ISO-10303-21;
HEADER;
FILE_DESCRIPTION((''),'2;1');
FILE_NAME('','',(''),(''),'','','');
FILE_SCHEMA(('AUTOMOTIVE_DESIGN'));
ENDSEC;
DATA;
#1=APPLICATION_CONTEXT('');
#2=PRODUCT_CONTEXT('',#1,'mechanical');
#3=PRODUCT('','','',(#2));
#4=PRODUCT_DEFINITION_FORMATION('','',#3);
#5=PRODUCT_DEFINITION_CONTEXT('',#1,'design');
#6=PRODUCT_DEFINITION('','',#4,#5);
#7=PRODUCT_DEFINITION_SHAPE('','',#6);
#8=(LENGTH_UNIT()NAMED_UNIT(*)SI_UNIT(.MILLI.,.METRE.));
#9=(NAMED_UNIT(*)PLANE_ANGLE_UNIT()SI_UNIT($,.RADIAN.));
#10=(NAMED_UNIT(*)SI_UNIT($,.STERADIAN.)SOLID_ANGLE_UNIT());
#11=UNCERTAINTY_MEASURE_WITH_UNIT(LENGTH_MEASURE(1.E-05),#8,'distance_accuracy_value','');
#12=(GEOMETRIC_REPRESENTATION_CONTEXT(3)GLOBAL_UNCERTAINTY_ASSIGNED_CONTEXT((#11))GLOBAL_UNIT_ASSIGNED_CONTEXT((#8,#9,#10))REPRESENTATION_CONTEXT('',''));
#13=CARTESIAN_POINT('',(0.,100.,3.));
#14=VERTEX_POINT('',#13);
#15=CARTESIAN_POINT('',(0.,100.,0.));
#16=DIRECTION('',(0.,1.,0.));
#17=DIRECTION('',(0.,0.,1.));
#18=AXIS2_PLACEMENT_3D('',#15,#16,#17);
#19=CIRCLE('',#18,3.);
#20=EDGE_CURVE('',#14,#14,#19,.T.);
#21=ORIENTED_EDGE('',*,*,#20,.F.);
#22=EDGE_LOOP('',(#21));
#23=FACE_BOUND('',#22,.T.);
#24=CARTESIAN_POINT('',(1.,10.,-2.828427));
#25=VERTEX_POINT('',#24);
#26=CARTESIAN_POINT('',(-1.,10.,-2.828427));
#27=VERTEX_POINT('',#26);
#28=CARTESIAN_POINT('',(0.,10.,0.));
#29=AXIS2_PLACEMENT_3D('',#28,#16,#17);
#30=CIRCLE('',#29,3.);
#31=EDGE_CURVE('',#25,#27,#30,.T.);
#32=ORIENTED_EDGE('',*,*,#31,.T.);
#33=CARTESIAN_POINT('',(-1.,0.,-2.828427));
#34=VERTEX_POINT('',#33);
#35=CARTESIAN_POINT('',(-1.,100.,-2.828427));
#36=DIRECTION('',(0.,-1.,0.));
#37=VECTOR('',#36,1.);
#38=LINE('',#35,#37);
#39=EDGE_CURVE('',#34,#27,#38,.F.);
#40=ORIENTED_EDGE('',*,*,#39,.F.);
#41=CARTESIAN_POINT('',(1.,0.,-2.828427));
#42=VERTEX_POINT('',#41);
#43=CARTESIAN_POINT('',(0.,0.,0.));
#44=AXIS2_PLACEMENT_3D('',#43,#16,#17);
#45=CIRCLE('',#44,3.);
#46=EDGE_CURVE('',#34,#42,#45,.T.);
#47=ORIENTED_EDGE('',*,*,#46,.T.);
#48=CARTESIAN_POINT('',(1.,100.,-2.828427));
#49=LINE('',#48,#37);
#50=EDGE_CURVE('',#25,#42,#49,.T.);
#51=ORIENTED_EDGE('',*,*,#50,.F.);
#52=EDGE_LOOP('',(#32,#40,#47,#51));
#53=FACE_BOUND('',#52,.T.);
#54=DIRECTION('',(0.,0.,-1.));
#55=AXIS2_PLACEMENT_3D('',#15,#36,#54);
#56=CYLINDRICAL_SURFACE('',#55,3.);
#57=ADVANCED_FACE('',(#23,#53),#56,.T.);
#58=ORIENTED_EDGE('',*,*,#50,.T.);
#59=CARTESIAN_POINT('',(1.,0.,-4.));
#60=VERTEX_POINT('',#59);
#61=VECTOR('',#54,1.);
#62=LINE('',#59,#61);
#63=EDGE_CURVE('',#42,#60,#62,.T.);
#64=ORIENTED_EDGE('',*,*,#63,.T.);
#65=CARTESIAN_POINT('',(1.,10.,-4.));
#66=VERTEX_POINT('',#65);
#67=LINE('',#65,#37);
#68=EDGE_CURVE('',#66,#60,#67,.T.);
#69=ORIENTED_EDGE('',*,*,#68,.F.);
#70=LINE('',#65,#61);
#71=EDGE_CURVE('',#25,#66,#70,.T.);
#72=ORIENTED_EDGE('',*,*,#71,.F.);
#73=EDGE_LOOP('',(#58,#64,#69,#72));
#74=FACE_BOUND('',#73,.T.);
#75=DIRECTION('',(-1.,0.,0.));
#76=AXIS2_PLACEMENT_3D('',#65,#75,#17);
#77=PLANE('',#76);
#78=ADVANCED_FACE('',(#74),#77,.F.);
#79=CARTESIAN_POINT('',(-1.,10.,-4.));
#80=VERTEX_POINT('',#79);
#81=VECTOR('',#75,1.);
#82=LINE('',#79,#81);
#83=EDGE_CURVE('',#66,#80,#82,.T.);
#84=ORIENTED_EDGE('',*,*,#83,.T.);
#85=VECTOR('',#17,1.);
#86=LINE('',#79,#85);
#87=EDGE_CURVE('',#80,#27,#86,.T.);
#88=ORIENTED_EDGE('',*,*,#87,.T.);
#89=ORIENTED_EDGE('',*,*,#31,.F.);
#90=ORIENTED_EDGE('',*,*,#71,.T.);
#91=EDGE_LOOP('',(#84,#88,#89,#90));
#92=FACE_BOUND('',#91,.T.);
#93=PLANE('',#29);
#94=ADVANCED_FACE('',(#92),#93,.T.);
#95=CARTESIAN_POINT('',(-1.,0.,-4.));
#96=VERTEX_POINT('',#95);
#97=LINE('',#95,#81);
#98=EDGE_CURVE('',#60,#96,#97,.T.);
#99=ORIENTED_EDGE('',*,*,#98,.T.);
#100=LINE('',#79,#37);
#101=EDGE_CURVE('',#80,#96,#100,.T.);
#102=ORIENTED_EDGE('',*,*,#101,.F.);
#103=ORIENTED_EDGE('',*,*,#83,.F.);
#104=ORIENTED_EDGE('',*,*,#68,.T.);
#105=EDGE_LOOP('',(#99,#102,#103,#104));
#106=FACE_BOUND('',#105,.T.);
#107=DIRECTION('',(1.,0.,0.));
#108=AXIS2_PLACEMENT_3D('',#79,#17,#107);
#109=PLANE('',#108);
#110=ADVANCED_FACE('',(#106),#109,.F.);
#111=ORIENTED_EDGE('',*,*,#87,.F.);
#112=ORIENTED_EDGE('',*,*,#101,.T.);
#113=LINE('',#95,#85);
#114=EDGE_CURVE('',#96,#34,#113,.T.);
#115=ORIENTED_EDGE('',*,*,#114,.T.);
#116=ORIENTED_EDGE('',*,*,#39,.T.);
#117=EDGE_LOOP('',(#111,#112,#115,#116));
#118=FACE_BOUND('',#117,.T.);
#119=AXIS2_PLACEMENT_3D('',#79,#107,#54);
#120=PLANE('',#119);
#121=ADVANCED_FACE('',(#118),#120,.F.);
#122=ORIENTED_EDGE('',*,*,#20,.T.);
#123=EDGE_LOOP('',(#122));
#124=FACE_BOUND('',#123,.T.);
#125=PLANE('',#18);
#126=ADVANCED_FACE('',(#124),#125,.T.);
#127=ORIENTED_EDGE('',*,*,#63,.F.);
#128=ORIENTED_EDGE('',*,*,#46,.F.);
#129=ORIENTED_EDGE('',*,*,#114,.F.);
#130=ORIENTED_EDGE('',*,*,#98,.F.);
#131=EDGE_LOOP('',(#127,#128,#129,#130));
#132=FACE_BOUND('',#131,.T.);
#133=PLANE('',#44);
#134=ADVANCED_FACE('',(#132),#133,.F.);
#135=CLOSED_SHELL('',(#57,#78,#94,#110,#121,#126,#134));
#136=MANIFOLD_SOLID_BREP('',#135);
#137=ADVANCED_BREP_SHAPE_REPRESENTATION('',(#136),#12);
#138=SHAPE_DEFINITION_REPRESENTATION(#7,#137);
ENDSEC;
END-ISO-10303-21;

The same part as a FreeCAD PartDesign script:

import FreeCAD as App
import Part
import Sketcher
from FreeCAD import Vector
Q = App.Units.Quantity

doc = App.newDocument("Part")
params = doc.addObject("Spreadsheet::Sheet", "Params")
for row, (alias, value) in enumerate([
    ("sketch1_diameter", "6 mm"),
    ("pad1_length", "100 mm"),
    ("sketch2_width", "2 mm"),
    ("pad2_length", "10 mm"),
], start=1):
    params.set(f"A{row}", alias)
    params.set(f"B{row}", "=" + value)
    params.setAlias(f"B{row}", alias)

body = doc.addObject("PartDesign::Body", "Body")

# Sketch on XZ plane
sketch1 = body.newObject("Sketcher::SketchObject", "Sketch")
sketch1.AttachmentSupport = (doc.getObject("XZ_Plane"), [""])
sketch1.MapMode = "FlatFace"
sketch1.addGeometry(Part.Circle(Vector(0, 0, 0), Vector(0, 0, 1), 3), False)
sketch1.addConstraint(Sketcher.Constraint("Coincident", 0, 3, -1, 1))
sketch1.addConstraint(Sketcher.Constraint("Diameter", 0, Q("6 mm")))
sketch1.setExpression("Constraints[1]", "Params.sketch1_diameter")
pad1 = body.newObject("PartDesign::Pad", "Pad")
pad1.Profile = sketch1
pad1.setExpression("Length", "Params.pad1_length")
pad1.Reversed = True

# Sketch on XZ plane
sketch2 = body.newObject("Sketcher::SketchObject", "Sketch001")
sketch2.AttachmentSupport = (doc.getObject("XZ_Plane"), [""])
sketch2.MapMode = "FlatFace"
sketch2.addGeometry(Part.LineSegment(Vector(-1, -4, 0), Vector(-1, -2, 0)), False)
sketch2.addGeometry(Part.LineSegment(Vector(-1, -2, 0), Vector(1, -2, 0)), False)
sketch2.addGeometry(Part.LineSegment(Vector(1, -2, 0), Vector(1, -4, 0)), False)
sketch2.addGeometry(Part.LineSegment(Vector(1, -4, 0), Vector(-1, -4, 0)), False)
sketch2.addConstraint(Sketcher.Constraint("Coincident", 0, 2, 1, 1))
sketch2.addConstraint(Sketcher.Constraint("Coincident", 1, 2, 2, 1))
sketch2.addConstraint(Sketcher.Constraint("Coincident", 2, 2, 3, 1))
sketch2.addConstraint(Sketcher.Constraint("Coincident", 3, 2, 0, 1))
sketch2.addConstraint(Sketcher.Constraint("Vertical", 0))
sketch2.addConstraint(Sketcher.Constraint("Horizontal", 1))
sketch2.addConstraint(Sketcher.Constraint("Vertical", 2))
sketch2.addConstraint(Sketcher.Constraint("Horizontal", 3))
sketch2.addConstraint(Sketcher.Constraint("Equal", 3, 0))
sketch2.addConstraint(Sketcher.Constraint("DistanceX", 1, 1, 1, 2, Q("2 mm")))
sketch2.addConstraint(Sketcher.Constraint("DistanceX", 0, 2, -1, 1, Q("1 mm")))
sketch2.addConstraint(Sketcher.Constraint("DistanceY", 0, 2, -1, 1, Q("2 mm")))
sketch2.setExpression("Constraints[9]", "Params.sketch2_width")
pad2 = body.newObject("PartDesign::Pad", "Pad001")
pad2.Profile = sketch2
pad2.setExpression("Length", "Params.pad2_length")
pad2.Reversed = True

doc.recompute()
